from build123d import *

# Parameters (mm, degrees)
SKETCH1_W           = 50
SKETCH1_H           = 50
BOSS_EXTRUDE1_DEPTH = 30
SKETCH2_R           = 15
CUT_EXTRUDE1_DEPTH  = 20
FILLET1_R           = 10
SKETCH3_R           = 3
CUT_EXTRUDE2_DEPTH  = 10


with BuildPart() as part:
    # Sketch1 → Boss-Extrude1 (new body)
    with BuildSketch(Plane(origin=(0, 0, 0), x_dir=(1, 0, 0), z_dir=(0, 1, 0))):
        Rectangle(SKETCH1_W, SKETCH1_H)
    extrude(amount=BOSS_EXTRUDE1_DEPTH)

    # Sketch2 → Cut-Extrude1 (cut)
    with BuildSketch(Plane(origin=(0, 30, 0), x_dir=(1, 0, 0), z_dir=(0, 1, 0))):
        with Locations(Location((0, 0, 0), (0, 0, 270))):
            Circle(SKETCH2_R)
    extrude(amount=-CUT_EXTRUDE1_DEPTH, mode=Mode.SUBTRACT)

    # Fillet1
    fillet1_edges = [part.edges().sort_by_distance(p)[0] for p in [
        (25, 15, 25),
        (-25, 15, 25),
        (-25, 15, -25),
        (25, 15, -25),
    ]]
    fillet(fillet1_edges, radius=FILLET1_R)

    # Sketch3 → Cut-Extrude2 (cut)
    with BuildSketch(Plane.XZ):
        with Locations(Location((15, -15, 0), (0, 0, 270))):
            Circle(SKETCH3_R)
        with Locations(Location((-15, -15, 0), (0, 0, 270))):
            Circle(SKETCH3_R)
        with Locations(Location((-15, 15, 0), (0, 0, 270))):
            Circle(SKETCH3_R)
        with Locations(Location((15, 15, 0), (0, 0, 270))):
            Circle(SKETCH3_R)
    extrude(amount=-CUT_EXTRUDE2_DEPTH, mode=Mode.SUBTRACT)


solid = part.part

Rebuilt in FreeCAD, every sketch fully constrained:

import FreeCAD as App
import Part
import Sketcher

V = App.Vector
Q = App.Units.Quantity


def edges_at(feature, points):
    """Names of the edges that pass closest to the given points."""
    edges = feature.Shape.Edges
    near = lambda p: min(range(len(edges)), key=lambda i: edges[i].distToShape(Part.Vertex(*p))[0])
    return sorted({f"Edge{near(p) + 1}" for p in points})


def add_polygon(sketch, points):
    """Adds a closed chain of lines whose ends are joined by coincident constraints."""
    first, n = sketch.GeometryCount, len(points)
    for a, b in zip(points, points[1:] + points[:1]):
        sketch.addGeometry(Part.LineSegment(App.Vector(*a, 0), App.Vector(*b, 0)), False)
    for i in range(n):
        sketch.addConstraint(Sketcher.Constraint("Coincident", first + i, 2, first + (i + 1) % n, 1))

doc = App.newDocument("Part")
body = doc.addObject("PartDesign::Body", "Body")

# Sketch on XZ plane
sketch1 = doc.addObject("Sketcher::SketchObject", "Sketch")
body.addObject(sketch1)
sketch1.AttachmentSupport = (doc.XZ_Plane, [""])
sketch1.MapMode = "FlatFace"
add_polygon(sketch1, [(-25, -25), (-25, 25), (25, 25), (25, -25)])  # lines 0-3
sketch1.addConstraint(Sketcher.Constraint("Vertical", 0))
sketch1.addConstraint(Sketcher.Constraint("Horizontal", 1))
sketch1.addConstraint(Sketcher.Constraint("Vertical", 2))
sketch1.addConstraint(Sketcher.Constraint("Horizontal", 3))
sketch1.addConstraint(Sketcher.Constraint("Symmetric", 0, 2, 2, 2, -1, 1))
sketch1.addConstraint(Sketcher.Constraint("Equal", 3, 0))
sketch1.addConstraint(Sketcher.Constraint("DistanceX", 1, 1, 1, 2, Q("50 mm")))
pad1 = doc.addObject("PartDesign::Pad", "Pad")
body.addObject(pad1)
pad1.Profile = sketch1
pad1.Length = 30
pad1.Reversed = True

# Sketch on XZ plane
sketch2 = doc.addObject("Sketcher::SketchObject", "Sketch001")
body.addObject(sketch2)
sketch2.AttachmentSupport = (doc.XZ_Plane, [""])
sketch2.MapMode = "FlatFace"
sketch2.AttachmentOffset = App.Placement(V(0, 0, -30), App.Rotation())
sketch2.addGeometry(Part.Circle(V(0, 0, 0), V(0, 0, 1), 15), False)
sketch2.addConstraint(Sketcher.Constraint("Coincident", 0, 3, -1, 1))
sketch2.addConstraint(Sketcher.Constraint("Diameter", 0, Q("30 mm")))
pocket1 = doc.addObject("PartDesign::Pocket", "Pocket")
body.addObject(pocket1)
pocket1.Profile = sketch2
pocket1.Length = 20
pocket1.Reversed = True
doc.recompute()

fillet = doc.addObject("PartDesign::Fillet", "Fillet")
body.addObject(fillet)
fillet.Base = (pocket1, edges_at(pocket1, [
    (25, 15, 25),
    (-25, 15, 25),
    (-25, 15, -25),
    (25, 15, -25),
]))
fillet.Radius = 10

# Sketch on XZ plane
sketch3 = doc.addObject("Sketcher::SketchObject", "Sketch002")
body.addObject(sketch3)
sketch3.AttachmentSupport = (doc.XZ_Plane, [""])
sketch3.MapMode = "FlatFace"
sketch3.addGeometry(Part.Circle(V(15, -15, 0), V(0, 0, 1), 3), False)
sketch3.addGeometry(Part.Circle(V(-15, -15, 0), V(0, 0, 1), 3), False)
sketch3.addGeometry(Part.Circle(V(-15, 15, 0), V(0, 0, 1), 3), False)
sketch3.addGeometry(Part.Circle(V(15, 15, 0), V(0, 0, 1), 3), False)
sketch3.addConstraint(Sketcher.Constraint("Equal", 0, 1))
sketch3.addConstraint(Sketcher.Constraint("Equal", 1, 2))
sketch3.addConstraint(Sketcher.Constraint("Equal", 2, 3))
sketch3.addConstraint(Sketcher.Constraint("Symmetric", 0, 3, 2, 3, -1, 1))
sketch3.addConstraint(Sketcher.Constraint("Symmetric", 1, 3, 3, 3, -1, 1))
sketch3.addConstraint(Sketcher.Constraint("Symmetric", 0, 3, 1, 3, -2))
sketch3.addConstraint(Sketcher.Constraint("Diameter", 0, Q("6 mm")))
sketch3.addConstraint(Sketcher.Constraint("DistanceX", -1, 1, 0, 3, Q("15 mm")))
sketch3.addConstraint(Sketcher.Constraint("DistanceY", 0, 3, -1, 1, Q("15 mm")))
pocket2 = doc.addObject("PartDesign::Pocket", "Pocket001")
body.addObject(pocket2)
pocket2.Profile = sketch3
pocket2.Length = 10

doc.recompute()
